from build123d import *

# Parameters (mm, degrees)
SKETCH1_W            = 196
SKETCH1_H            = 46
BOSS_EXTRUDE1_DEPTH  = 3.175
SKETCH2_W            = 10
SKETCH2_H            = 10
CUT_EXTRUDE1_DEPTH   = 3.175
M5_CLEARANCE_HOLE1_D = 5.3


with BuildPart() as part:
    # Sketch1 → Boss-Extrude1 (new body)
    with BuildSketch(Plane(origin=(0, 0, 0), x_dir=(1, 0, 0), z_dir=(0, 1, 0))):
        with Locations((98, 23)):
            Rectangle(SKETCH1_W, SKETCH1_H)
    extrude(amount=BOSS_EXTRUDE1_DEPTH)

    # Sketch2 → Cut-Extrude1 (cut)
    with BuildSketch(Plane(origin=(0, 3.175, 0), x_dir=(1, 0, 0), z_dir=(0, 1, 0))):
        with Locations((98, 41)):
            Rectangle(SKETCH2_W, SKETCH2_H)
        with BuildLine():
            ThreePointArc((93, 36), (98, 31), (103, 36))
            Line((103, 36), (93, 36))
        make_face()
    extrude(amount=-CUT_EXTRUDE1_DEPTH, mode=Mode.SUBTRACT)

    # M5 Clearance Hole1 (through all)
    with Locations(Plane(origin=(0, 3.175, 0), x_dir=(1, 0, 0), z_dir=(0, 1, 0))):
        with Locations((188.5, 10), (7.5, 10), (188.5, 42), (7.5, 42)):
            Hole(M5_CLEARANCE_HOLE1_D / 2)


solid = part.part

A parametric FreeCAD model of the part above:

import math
import FreeCAD as App
import Part
import Sketcher
from FreeCAD import Vector


def add_polygon(sketch, points):
    """Adds a closed chain of lines whose ends are joined by coincident constraints."""
    first, n = sketch.GeometryCount, len(points)
    for a, b in zip(points, points[1:] + points[:1]):
        sketch.addGeometry(Part.LineSegment(App.Vector(*a, 0), App.Vector(*b, 0)), False)
    for i in range(n):
        sketch.addConstraint(Sketcher.Constraint("Coincident", first + i, 2, first + (i + 1) % n, 1))

doc = App.newDocument("Part")
body = doc.addObject("PartDesign::Body", "Body")

sketch1 = doc.addObject("Sketcher::SketchObject", "Sketch")
body.addObject(sketch1)
sketch1.AttachmentSupport = (doc.XZ_Plane, [""])
sketch1.MapMode = "FlatFace"
add_polygon(sketch1, [(0, -46), (0, 0), (196, 0), (196, -46)])
sketch1.addConstraint(Sketcher.Constraint("Vertical", 0))
sketch1.addConstraint(Sketcher.Constraint("Horizontal", 1))
sketch1.addConstraint(Sketcher.Constraint("Vertical", 2))
sketch1.addConstraint(Sketcher.Constraint("Horizontal", 3))
sketch1.addConstraint(Sketcher.Constraint("Coincident", 0, 2, -1, 1))
sketch1.addConstraint(Sketcher.Constraint("DistanceX", 1, 1, 1, 2, 196.0))
sketch1.addConstraint(Sketcher.Constraint("DistanceY", 0, 1, 0, 2, 46.0))
pad1 = doc.addObject("PartDesign::Pad", "Pad")
body.addObject(pad1)
pad1.Profile = sketch1
pad1.Length = 3.175
pad1.Reversed = True

sketch2 = doc.addObject("Sketcher::SketchObject", "Sketch001")
body.addObject(sketch2)
sketch2.AttachmentSupport = (doc.XZ_Plane, [""])
sketch2.MapMode = "FlatFace"
sketch2.AttachmentOffset = App.Placement(Vector(0, 0, -3.175), App.Rotation())
sketch2.addGeometry(Part.ArcOfCircle(Part.Circle(Vector(98, -36, 0), Vector(0, 0, 1), 5), math.radians(0), math.radians(180)), False)
sketch2.addGeometry(Part.LineSegment(Vector(103, -36, 0), Vector(103, -46, 0)), False)
sketch2.addGeometry(Part.LineSegment(Vector(103, -46, 0), Vector(93, -46, 0)), False)
sketch2.addGeometry(Part.LineSegment(Vector(93, -46, 0), Vector(93, -36, 0)), False)
sketch2.addConstraint(Sketcher.Constraint("Tangent", 0, 1, 1, 1))
sketch2.addConstraint(Sketcher.Constraint("Coincident", 1, 2, 2, 1))
sketch2.addConstraint(Sketcher.Constraint("Coincident", 2, 2, 3, 1))
sketch2.addConstraint(Sketcher.Constraint("Tangent", 3, 2, 0, 2))
sketch2.addConstraint(Sketcher.Constraint("Vertical", 1))
sketch2.addConstraint(Sketcher.Constraint("Horizontal", 2))
sketch2.addConstraint(Sketcher.Constraint("Vertical", 3))
sketch2.addConstraint(Sketcher.Constraint("Equal", 2, 1))
sketch2.addConstraint(Sketcher.Constraint("Radius", 0, 5.0))
sketch2.addConstraint(Sketcher.Constraint("DistanceX", -1, 1, 0, 3, 98.0))
sketch2.addConstraint(Sketcher.Constraint("DistanceY", 0, 3, -1, 1, 36.0))
pocket1 = doc.addObject("PartDesign::Pocket", "Pocket")
body.addObject(pocket1)
pocket1.Profile = sketch2
pocket1.Length = 3.175
pocket1.Reversed = True

sketch3 = doc.addObject("Sketcher::SketchObject", "Sketch002")
body.addObject(sketch3)
sketch3.AttachmentSupport = (doc.XZ_Plane, [""])
sketch3.MapMode = "FlatFace"
sketch3.AttachmentOffset = App.Placement(Vector(0, 0, -3.175), App.Rotation())
sketch3.addGeometry(Part.Circle(Vector(188.5, -10, 0), Vector(0, 0, 1), 2.6), False)
sketch3.addGeometry(Part.Circle(Vector(7.5, -10, 0), Vector(0, 0, 1), 2.6), False)
sketch3.addGeometry(Part.Circle(Vector(188.5, -42, 0), Vector(0, 0, 1), 2.6), False)
sketch3.addGeometry(Part.Circle(Vector(7.5, -42, 0), Vector(0, 0, 1), 2.6), False)
sketch3.addConstraint(Sketcher.Constraint("Equal", 0, 1))
sketch3.addConstraint(Sketcher.Constraint("Equal", 1, 2))
sketch3.addConstraint(Sketcher.Constraint("Equal", 2, 3))
sketch3.addConstraint(Sketcher.Constraint("Horizontal", 0, 3, 1, 3))
sketch3.addConstraint(Sketcher.Constraint("Horizontal", 2, 3, 3, 3))
sketch3.addConstraint(Sketcher.Constraint("Vertical", 0, 3, 2, 3))
sketch3.addConstraint(Sketcher.Constraint("Vertical", 1, 3, 3, 3))
sketch3.addConstraint(Sketcher.Constraint("Diameter", 0, 5.3))
sketch3.addConstraint(Sketcher.Constraint("DistanceY", 0, 3, -1, 1, 10.0))
sketch3.addConstraint(Sketcher.Constraint("DistanceY", 2, 3, -1, 1, 42.0))
sketch3.addConstraint(Sketcher.Constraint("DistanceX", 1, 3, 0, 3, 181.0))
sketch3.addConstraint(Sketcher.Constraint("DistanceX", -1, 1, 0, 3, 188.5))
doc.recompute()
hole = doc.addObject("PartDesign::Hole", "Hole")
body.addObject(hole)
hole.Profile = sketch3
hole.ThreadType = "None"
hole.Diameter = 5.3
hole.DepthType = "ThroughAll"
hole.Reversed = True

doc.recompute()
